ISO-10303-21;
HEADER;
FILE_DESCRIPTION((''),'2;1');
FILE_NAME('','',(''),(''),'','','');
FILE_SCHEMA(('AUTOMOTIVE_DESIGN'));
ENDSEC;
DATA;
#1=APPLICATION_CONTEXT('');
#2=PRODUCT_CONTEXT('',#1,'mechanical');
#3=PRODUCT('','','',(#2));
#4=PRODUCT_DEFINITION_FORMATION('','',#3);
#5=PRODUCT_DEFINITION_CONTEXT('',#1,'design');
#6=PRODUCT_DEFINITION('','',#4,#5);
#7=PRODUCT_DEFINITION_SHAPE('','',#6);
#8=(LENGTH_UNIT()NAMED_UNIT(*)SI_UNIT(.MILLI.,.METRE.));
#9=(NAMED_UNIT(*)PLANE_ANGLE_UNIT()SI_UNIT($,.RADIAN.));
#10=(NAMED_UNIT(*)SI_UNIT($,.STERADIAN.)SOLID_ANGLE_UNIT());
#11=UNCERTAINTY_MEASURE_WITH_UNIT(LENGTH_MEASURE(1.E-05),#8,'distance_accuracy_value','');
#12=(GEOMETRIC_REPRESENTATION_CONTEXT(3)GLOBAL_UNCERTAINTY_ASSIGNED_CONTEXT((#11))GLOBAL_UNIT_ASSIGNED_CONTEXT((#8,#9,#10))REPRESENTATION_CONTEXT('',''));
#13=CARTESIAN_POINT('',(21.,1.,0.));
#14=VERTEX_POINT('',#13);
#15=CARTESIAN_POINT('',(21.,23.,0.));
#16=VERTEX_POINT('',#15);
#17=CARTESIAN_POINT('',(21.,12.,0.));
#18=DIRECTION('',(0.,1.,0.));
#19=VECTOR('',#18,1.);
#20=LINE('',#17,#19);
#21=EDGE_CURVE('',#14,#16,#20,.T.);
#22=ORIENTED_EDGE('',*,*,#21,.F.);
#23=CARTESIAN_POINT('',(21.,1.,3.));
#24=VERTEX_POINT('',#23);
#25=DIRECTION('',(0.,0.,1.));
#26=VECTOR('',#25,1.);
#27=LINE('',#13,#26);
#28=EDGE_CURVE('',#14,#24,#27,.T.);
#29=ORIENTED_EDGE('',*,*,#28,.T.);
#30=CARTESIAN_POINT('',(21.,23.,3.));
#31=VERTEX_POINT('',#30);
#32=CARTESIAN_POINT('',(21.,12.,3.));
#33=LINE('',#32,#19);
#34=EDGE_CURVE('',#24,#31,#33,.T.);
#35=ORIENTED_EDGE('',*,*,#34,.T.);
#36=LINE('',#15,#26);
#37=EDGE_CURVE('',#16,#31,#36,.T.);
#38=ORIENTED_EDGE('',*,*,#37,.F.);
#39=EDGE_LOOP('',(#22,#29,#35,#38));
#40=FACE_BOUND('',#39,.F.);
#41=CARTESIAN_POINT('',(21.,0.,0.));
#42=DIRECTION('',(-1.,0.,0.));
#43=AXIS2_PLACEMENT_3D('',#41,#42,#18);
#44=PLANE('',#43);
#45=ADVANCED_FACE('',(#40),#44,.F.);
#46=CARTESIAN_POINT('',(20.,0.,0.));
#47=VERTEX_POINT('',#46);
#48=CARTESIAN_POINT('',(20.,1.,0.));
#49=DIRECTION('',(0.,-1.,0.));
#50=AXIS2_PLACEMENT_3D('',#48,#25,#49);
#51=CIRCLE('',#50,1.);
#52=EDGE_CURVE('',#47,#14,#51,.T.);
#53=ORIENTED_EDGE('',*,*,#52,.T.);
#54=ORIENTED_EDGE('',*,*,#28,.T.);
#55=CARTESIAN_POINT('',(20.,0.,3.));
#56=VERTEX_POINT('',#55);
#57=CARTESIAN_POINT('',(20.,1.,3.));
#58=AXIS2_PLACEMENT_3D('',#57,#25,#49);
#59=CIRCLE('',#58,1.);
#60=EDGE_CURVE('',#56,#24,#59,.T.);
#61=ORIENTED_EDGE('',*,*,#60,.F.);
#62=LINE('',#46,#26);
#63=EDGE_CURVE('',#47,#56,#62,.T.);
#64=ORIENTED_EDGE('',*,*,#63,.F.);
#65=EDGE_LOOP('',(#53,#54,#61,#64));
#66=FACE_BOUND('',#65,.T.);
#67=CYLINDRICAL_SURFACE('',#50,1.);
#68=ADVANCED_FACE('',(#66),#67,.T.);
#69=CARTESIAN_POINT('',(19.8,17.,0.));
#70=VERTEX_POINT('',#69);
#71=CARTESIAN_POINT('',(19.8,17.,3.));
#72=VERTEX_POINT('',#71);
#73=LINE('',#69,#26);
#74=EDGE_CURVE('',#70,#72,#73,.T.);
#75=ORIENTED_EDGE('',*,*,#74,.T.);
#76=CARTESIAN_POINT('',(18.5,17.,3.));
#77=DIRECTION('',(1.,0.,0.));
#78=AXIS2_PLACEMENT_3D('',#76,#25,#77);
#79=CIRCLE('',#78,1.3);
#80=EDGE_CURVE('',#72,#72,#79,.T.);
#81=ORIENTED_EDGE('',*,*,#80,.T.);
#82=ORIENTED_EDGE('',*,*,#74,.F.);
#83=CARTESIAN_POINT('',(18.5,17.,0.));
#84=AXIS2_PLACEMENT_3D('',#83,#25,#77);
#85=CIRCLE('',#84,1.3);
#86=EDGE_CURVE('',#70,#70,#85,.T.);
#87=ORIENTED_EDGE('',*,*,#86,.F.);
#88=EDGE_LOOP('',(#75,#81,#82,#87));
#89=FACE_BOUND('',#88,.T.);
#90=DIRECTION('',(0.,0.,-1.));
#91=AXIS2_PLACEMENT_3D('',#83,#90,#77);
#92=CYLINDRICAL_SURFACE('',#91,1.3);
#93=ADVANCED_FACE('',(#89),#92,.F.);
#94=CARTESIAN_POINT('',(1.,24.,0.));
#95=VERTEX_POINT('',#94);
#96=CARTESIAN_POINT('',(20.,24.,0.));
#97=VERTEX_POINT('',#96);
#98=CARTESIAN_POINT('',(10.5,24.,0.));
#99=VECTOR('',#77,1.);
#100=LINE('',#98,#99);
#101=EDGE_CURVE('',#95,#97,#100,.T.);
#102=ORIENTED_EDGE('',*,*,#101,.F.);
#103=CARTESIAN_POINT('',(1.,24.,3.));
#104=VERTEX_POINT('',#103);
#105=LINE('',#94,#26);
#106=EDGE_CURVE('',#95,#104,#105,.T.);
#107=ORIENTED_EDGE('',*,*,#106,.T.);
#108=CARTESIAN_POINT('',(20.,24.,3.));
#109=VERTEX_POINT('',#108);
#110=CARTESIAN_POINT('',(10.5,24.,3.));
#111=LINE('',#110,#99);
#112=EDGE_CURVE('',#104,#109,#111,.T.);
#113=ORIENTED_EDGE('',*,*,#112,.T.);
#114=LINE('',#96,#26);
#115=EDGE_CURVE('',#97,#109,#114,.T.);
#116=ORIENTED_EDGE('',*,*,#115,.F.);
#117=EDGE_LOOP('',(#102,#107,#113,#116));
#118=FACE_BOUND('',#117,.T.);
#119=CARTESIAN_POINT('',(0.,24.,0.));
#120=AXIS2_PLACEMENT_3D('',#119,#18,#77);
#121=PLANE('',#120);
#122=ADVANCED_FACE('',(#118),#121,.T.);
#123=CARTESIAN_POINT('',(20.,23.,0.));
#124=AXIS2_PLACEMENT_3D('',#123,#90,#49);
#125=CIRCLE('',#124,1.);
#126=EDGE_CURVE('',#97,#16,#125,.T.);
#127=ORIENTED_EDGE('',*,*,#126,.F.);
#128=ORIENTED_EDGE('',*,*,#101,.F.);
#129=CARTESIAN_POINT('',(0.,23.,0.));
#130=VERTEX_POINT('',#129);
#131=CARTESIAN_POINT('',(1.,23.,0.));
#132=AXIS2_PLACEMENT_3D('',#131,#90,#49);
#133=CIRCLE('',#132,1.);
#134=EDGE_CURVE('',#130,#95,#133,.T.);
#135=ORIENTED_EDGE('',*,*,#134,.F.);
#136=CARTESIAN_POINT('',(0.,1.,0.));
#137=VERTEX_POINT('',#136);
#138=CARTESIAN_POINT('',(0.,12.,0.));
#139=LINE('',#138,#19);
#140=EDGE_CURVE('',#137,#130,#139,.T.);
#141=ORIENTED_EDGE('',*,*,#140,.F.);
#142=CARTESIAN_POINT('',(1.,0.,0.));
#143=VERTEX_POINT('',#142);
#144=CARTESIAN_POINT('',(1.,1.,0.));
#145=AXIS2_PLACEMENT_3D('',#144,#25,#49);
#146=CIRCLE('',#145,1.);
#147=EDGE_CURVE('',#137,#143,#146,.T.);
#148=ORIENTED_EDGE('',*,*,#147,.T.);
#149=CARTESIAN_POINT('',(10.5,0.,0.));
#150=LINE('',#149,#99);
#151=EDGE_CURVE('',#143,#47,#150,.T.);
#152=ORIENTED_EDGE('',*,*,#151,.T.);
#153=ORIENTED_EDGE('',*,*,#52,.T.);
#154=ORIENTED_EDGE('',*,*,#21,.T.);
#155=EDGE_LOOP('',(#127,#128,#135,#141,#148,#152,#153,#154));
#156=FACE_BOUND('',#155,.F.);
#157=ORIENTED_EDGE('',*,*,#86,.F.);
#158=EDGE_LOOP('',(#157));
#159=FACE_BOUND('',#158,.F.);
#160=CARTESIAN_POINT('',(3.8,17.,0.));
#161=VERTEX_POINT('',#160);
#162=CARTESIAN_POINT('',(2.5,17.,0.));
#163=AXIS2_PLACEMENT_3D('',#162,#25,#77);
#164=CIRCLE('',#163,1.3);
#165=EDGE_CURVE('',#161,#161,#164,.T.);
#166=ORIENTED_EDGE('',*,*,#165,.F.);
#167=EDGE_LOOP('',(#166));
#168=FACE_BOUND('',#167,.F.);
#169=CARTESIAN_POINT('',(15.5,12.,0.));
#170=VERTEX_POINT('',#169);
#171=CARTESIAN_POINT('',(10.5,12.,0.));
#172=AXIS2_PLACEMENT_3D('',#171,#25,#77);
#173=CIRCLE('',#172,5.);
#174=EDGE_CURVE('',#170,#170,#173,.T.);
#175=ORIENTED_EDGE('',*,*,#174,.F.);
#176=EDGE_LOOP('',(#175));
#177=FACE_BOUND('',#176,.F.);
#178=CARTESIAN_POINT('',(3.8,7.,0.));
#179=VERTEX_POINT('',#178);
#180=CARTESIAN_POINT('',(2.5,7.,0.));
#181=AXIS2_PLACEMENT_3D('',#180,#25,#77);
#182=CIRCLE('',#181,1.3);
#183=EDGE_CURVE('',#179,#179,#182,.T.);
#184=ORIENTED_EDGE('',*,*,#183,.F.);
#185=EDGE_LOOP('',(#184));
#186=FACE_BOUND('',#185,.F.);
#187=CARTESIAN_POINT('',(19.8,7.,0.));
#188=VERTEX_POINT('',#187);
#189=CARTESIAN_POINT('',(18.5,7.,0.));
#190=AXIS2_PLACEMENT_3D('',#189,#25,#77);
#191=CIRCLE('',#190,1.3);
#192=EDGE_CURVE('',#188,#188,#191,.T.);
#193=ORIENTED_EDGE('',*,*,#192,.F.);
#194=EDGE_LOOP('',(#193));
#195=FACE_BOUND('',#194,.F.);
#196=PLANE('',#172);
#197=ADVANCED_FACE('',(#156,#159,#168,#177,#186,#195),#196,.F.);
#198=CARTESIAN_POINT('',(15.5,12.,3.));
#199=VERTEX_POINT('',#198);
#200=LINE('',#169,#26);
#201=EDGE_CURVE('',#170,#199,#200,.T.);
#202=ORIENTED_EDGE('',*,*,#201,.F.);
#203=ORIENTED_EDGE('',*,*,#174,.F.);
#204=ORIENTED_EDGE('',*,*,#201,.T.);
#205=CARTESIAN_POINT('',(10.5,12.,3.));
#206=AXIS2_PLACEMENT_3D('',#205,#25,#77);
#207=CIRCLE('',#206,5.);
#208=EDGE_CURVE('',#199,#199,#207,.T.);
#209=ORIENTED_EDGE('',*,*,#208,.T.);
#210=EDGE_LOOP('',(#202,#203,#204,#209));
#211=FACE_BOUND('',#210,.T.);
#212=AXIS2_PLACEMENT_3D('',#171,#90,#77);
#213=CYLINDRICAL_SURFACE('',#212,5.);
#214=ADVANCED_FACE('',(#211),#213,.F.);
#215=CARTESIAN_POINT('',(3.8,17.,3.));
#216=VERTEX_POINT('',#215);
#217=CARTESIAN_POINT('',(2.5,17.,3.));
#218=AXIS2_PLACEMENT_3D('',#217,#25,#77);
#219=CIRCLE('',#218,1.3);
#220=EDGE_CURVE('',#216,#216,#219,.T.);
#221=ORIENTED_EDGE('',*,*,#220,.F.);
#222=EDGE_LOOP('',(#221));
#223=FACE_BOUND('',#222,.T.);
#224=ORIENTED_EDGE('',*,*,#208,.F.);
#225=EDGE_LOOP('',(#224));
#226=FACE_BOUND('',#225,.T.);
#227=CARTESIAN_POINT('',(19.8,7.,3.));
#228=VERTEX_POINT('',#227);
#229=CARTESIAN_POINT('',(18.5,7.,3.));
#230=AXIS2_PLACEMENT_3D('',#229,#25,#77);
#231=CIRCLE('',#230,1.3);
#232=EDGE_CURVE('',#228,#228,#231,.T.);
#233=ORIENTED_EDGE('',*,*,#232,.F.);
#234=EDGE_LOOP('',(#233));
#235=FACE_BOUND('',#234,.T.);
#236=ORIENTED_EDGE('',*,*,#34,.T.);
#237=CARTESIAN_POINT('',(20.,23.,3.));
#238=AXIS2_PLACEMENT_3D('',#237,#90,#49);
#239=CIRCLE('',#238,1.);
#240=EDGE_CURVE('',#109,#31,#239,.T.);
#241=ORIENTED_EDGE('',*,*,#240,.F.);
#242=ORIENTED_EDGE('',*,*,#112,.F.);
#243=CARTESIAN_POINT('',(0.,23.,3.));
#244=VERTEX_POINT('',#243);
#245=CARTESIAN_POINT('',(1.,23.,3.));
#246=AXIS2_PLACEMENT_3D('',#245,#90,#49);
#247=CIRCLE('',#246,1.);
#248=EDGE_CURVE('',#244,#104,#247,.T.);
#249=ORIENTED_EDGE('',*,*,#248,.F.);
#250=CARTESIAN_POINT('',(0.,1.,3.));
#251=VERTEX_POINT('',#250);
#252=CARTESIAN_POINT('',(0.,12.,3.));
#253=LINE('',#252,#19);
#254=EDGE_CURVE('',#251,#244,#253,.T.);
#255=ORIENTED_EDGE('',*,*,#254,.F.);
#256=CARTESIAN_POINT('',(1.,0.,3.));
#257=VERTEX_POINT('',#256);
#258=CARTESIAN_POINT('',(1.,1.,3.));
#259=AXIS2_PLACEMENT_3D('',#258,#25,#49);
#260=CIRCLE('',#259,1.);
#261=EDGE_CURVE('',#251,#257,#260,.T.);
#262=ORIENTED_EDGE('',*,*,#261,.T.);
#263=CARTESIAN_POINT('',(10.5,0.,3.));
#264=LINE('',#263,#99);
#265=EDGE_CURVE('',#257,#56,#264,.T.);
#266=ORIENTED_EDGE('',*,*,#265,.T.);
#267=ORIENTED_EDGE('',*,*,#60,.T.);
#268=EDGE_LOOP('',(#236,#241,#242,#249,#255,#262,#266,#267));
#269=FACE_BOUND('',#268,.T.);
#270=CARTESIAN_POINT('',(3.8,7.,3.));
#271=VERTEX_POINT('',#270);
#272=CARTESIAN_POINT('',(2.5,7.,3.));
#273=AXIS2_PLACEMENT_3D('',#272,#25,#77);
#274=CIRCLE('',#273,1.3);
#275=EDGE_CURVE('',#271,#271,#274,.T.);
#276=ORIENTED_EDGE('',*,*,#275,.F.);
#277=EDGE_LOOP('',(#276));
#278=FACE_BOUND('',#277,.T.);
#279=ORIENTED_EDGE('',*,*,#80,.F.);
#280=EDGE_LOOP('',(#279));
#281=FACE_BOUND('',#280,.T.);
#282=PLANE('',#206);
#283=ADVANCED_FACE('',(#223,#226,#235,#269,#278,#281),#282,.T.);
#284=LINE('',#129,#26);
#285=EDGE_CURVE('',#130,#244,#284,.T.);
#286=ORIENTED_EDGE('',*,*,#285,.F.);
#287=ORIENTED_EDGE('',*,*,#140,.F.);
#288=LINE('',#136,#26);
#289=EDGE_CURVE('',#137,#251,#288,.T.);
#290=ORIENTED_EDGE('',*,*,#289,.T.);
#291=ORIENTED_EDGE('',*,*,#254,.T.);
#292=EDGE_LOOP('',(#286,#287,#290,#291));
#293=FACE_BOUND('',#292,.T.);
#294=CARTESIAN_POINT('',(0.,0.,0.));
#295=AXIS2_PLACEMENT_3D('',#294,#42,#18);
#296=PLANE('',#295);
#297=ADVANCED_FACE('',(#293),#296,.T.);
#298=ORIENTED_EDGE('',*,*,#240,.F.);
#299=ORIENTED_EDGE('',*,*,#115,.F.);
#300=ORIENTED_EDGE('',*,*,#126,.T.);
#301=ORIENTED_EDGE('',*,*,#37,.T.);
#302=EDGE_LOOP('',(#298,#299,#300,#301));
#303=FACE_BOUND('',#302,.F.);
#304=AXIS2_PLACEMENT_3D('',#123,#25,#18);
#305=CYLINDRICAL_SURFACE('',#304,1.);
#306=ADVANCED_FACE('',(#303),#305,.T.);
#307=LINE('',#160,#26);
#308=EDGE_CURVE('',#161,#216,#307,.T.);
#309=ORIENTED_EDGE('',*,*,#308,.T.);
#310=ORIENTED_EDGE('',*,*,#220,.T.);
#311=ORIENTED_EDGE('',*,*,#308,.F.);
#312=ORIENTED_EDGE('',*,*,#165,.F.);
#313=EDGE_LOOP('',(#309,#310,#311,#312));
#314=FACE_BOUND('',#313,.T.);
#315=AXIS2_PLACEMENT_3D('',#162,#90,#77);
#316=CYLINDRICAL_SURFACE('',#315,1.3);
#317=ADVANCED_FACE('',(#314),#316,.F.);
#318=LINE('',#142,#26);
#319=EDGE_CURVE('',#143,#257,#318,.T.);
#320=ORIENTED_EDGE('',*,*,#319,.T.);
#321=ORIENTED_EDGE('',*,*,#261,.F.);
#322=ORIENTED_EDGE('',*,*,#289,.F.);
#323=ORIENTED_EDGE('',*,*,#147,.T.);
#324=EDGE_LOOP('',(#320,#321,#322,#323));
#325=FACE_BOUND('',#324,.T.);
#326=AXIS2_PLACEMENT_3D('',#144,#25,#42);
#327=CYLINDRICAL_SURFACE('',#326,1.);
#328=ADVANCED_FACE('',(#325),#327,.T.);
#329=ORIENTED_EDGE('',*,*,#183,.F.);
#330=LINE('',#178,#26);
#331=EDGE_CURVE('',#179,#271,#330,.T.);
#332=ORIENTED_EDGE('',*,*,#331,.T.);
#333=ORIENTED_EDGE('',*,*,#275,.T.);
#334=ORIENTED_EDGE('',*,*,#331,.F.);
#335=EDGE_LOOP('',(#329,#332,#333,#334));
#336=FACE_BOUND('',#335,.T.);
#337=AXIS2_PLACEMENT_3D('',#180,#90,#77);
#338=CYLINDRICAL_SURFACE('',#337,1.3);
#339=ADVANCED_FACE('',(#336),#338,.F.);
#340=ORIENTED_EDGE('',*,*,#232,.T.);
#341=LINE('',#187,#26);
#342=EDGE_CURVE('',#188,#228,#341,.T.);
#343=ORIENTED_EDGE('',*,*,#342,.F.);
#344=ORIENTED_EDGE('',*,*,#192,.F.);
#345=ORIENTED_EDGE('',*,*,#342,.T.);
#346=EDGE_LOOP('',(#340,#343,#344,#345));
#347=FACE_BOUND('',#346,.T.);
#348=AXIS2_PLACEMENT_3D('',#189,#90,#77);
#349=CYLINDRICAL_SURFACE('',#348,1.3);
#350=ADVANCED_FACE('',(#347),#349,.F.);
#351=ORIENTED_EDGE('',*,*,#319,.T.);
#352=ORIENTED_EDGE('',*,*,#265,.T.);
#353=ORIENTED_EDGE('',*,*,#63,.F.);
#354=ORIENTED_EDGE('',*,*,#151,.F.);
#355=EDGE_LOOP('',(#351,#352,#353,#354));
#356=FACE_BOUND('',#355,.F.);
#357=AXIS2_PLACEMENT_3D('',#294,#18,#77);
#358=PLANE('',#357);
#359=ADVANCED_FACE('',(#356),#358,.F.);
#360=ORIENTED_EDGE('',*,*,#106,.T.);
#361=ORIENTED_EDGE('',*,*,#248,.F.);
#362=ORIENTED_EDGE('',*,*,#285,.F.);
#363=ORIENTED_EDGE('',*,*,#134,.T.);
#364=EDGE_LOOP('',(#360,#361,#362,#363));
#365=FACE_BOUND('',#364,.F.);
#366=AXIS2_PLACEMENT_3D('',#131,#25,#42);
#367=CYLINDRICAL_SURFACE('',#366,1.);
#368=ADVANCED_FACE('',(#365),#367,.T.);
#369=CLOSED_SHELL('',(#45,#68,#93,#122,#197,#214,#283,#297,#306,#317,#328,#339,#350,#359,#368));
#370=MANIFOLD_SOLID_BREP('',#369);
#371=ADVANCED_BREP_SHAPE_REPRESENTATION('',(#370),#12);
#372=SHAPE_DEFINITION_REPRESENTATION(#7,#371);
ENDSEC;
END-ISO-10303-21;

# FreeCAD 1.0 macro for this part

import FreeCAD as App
import Part
import Sketcher
from FreeCAD import Vector
Q = App.Units.Quantity


def edges_at(feature, points):
    """Names of the edges that pass closest to the given points."""
    edges = feature.Shape.Edges
    near = lambda p: min(range(len(edges)), key=lambda i: edges[i].distToShape(Part.Vertex(*p))[0])
    return sorted({f"Edge{near(p) + 1}" for p in points})

doc = App.newDocument("Part")
body = doc.addObject("PartDesign::Body", "Body")

# Sketch on XY plane
sketch1 = body.newObject("Sketcher::SketchObject", "Sketch")
sketch1.AttachmentSupport = (doc.getObject("XY_Plane"), [""])
sketch1.MapMode = "FlatFace"
sketch1.addGeometry([
    Part.LineSegment(Vector(0, 24, 0), Vector(0, 0, 0)),  # 0
    Part.LineSegment(Vector(0, 0, 0), Vector(21, 0, 0)),  # 1
    Part.LineSegment(Vector(21, 0, 0), Vector(21, 24, 0)),  # 2
    Part.LineSegment(Vector(21, 24, 0), Vector(0, 24, 0)),  # 3
    Part.Circle(Vector(2.5, 7, 0), Vector(0, 0, 1), 1.3),  # 4
    Part.Circle(Vector(18.5, 7, 0), Vector(0, 0, 1), 1.3),  # 5
    Part.Circle(Vector(2.5, 17, 0), Vector(0, 0, 1), 1.3),  # 6
    Part.Circle(Vector(10.5, 12, 0), Vector(0, 0, 1), 5),  # 7
    Part.Circle(Vector(18.5, 17, 0), Vector(0, 0, 1), 1.3),  # 8
], False)
sketch1.addConstraint([
    Sketcher.Constraint("Coincident", 0, 2, 1, 1),
    Sketcher.Constraint("Coincident", 1, 2, 2, 1),
    Sketcher.Constraint("Coincident", 2, 2, 3, 1),
    Sketcher.Constraint("Coincident", 3, 2, 0, 1),
    Sketcher.Constraint("Vertical", 0),
    Sketcher.Constraint("Horizontal", 1),
    Sketcher.Constraint("Vertical", 2),
    Sketcher.Constraint("Horizontal", 3),
    Sketcher.Constraint("Coincident", 0, 2, -1, 1),
    Sketcher.Constraint("Equal", 4, 5),
    Sketcher.Constraint("Equal", 5, 6),
    Sketcher.Constraint("Equal", 6, 8),
    Sketcher.Constraint("Horizontal", 4, 3, 5, 3),
    Sketcher.Constraint("Horizontal", 6, 3, 8, 3),
    Sketcher.Constraint("Vertical", 4, 3, 6, 3),
    Sketcher.Constraint("Vertical", 5, 3, 8, 3),
    Sketcher.Constraint("Diameter", 7, Q("10 mm")),
    Sketcher.Constraint("Diameter", 4, Q("2.6 mm")),
    Sketcher.Constraint("DistanceX", 1, 1, 1, 2, Q("21 mm")),
    Sketcher.Constraint("DistanceY", 0, 2, 0, 1, Q("24 mm")),
    Sketcher.Constraint("DistanceY", -1, 1, 4, 3, Q("7 mm")),
    Sketcher.Constraint("DistanceY", -1, 1, 6, 3, Q("17 mm")),
    Sketcher.Constraint("DistanceY", -1, 1, 7, 3, Q("12 mm")),
    Sketcher.Constraint("DistanceX", 4, 3, 5, 3, Q("16 mm")),
    Sketcher.Constraint("DistanceX", 4, 3, 7, 3, Q("8 mm")),
    Sketcher.Constraint("DistanceX", -1, 1, 4, 3, Q("2.5 mm")),
])
pad1 = body.newObject("PartDesign::Pad", "Pad")
pad1.Profile = sketch1
pad1.Length = 3
doc.recompute()

fillet = body.newObject("PartDesign::Fillet", "Fillet")
fillet.Base = (pad1, edges_at(pad1, [
    (0, 0, 1.5),
    (21, 0, 1.5),
    (21, 24, 1.5),
    (0, 24, 1.5),
]))
fillet.Radius = 1

doc.recompute()
